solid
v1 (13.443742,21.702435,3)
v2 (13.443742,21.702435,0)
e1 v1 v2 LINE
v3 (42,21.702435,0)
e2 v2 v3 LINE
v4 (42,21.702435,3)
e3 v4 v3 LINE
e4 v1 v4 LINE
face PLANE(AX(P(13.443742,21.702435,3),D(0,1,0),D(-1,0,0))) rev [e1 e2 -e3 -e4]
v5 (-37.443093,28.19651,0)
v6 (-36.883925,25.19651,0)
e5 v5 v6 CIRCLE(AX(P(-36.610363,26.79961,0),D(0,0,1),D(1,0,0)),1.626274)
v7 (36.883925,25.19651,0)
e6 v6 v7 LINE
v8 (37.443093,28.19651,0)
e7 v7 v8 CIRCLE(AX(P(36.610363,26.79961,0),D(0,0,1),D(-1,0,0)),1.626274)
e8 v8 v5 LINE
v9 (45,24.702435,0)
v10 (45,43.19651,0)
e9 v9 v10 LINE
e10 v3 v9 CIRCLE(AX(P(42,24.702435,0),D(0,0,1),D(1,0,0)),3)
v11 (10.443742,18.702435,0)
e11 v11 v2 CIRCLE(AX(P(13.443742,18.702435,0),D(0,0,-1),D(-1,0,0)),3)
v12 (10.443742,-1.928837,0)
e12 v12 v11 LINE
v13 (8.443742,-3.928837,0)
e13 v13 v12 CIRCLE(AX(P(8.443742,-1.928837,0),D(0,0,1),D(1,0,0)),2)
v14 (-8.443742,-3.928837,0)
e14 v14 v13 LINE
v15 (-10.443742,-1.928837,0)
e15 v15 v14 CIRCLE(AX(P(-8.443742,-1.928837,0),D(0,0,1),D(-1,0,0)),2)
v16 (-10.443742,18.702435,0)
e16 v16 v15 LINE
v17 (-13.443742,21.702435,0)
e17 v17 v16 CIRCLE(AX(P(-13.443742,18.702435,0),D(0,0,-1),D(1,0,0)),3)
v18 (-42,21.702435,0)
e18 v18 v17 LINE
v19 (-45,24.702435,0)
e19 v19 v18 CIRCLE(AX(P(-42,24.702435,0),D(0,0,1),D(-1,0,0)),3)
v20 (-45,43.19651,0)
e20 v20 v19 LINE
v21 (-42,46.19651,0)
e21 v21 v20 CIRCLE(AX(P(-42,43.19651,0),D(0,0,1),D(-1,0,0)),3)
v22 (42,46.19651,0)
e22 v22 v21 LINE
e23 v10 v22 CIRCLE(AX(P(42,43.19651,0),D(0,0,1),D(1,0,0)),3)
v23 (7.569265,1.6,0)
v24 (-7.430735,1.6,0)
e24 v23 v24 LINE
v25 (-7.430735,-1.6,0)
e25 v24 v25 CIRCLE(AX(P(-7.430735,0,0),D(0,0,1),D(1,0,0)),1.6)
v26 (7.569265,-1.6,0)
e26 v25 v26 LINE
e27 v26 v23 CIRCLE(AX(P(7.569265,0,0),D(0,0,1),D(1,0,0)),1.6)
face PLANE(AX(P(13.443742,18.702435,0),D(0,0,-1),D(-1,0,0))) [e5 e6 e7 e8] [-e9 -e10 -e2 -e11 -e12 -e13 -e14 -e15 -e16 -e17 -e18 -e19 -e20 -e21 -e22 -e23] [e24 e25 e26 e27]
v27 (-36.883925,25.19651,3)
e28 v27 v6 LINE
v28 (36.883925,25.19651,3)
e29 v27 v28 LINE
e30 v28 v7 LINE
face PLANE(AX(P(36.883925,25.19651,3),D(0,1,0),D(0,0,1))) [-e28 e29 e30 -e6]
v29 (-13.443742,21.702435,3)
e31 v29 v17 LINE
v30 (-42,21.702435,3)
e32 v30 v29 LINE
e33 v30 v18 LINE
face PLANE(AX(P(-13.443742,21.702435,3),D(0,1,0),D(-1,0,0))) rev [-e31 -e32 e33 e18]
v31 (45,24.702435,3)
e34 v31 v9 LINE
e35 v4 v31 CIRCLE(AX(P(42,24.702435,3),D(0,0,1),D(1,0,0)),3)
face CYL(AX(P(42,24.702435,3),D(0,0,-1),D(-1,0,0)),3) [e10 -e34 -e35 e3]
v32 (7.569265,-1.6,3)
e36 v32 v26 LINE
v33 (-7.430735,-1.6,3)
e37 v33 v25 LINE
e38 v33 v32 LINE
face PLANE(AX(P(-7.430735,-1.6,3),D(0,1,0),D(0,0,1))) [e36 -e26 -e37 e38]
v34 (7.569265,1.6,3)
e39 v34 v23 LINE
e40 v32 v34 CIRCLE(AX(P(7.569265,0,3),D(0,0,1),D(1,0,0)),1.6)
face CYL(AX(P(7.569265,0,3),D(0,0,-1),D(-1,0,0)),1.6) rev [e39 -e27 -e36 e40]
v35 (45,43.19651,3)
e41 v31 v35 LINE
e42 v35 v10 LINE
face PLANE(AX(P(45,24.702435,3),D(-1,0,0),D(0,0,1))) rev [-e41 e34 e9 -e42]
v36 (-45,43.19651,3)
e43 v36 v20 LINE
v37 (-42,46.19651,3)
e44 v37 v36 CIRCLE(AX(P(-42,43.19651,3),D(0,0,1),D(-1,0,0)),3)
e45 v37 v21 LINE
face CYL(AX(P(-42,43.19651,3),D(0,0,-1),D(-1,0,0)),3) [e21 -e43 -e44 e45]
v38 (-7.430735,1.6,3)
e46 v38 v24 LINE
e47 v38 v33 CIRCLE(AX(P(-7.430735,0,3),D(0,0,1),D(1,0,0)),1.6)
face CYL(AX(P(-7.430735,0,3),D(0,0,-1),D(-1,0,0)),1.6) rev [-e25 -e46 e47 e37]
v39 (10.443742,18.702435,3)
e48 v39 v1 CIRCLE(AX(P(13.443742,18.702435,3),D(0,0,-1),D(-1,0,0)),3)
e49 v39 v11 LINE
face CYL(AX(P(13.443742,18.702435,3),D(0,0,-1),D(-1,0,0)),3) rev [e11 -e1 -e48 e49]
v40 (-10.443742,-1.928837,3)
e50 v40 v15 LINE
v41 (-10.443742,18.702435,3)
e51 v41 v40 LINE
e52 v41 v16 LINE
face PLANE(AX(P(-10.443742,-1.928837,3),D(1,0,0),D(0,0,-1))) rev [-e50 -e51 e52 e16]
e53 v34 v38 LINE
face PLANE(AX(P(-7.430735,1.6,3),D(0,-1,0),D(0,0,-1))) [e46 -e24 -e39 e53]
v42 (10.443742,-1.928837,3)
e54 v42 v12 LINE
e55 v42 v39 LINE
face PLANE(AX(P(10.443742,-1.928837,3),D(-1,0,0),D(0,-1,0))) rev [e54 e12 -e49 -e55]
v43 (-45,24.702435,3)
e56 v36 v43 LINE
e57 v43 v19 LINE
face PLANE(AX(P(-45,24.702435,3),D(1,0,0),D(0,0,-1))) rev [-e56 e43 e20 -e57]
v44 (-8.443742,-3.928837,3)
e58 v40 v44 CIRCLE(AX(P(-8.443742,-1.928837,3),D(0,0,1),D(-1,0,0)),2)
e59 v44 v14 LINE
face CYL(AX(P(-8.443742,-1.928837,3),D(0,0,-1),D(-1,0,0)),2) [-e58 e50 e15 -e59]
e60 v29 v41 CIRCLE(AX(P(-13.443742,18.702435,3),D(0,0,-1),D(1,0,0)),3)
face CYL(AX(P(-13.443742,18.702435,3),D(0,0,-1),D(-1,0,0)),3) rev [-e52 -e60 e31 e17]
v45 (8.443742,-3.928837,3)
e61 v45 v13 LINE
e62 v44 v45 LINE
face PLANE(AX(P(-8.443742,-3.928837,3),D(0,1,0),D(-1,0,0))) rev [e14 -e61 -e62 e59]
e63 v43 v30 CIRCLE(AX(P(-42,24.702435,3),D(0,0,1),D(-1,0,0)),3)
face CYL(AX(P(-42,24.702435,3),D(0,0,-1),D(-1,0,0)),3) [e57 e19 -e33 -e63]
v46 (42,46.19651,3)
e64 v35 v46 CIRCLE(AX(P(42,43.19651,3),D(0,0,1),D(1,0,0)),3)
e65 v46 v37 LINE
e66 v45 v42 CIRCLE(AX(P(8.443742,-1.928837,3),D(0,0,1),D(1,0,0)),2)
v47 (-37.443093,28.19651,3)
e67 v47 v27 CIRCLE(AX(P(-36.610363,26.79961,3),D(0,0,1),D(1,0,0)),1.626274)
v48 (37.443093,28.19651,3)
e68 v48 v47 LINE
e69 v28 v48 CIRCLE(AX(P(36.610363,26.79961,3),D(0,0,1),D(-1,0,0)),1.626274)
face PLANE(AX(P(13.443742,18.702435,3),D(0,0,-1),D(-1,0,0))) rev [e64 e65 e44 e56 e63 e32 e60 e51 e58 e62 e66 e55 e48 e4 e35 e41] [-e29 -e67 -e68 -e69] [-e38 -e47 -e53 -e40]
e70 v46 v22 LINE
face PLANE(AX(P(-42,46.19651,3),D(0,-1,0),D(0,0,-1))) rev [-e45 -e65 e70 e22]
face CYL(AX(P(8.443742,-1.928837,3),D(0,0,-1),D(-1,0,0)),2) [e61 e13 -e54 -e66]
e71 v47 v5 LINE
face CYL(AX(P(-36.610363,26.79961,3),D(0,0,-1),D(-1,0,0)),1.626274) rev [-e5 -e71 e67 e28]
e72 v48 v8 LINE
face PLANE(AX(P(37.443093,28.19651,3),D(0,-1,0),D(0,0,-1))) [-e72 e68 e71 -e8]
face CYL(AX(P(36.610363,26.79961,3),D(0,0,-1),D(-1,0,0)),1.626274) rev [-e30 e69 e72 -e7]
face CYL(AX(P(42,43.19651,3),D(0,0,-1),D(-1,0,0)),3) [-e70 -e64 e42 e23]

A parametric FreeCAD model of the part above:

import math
import FreeCAD as App
import Part
import Sketcher
from FreeCAD import Vector
Q = App.Units.Quantity

doc = App.newDocument("Part")
body = doc.addObject("PartDesign::Body", "Body")

sketch1 = body.newObject("Sketcher::SketchObject", "Sketch")
sketch1.AttachmentSupport = (doc.getObject("XY_Plane"), [""])
sketch1.MapMode = "FlatFace"
sketch1.addGeometry([
    Part.LineSegment(Vector(-8.4, -3.9, 0), Vector(8.4, -3.9, 0)),
    Part.ArcOfCircle(Part.Circle(Vector(8.4, -1.9, 0), Vector(0, 0, 1), 2), math.radians(-90), math.radians(0)),
    Part.LineSegment(Vector(10.4, -1.9, 0), Vector(10.4, 18.7, 0)),
    Part.ArcOfCircle(Part.Circle(Vector(13.4, 18.7, 0), Vector(0, 0, 1), 3), math.radians(90), math.radians(180)),
    Part.LineSegment(Vector(13.4, 21.7, 0), Vector(42, 21.7, 0)),
    Part.ArcOfCircle(Part.Circle(Vector(42, 24.7, 0), Vector(0, 0, 1), 3), math.radians(-90), math.radians(0)),
    Part.LineSegment(Vector(45, 24.7, 0), Vector(45, 43.2, 0)),
    Part.ArcOfCircle(Part.Circle(Vector(42, 43.2, 0), Vector(0, 0, 1), 3), math.radians(0), math.radians(90)),
    Part.LineSegment(Vector(42, 46.2, 0), Vector(-42, 46.2, 0)),
    Part.ArcOfCircle(Part.Circle(Vector(-42, 43.2, 0), Vector(0, 0, 1), 3), math.radians(90), math.radians(180)),
    Part.LineSegment(Vector(-45, 43.2, 0), Vector(-45, 24.7, 0)),
    Part.ArcOfCircle(Part.Circle(Vector(-42, 24.7, 0), Vector(0, 0, 1), 3), math.radians(180), math.radians(270)),
    Part.LineSegment(Vector(-42, 21.7, 0), Vector(-13.4, 21.7, 0)),
    Part.ArcOfCircle(Part.Circle(Vector(-13.4, 18.7, 0), Vector(0, 0, 1), 3), math.radians(0), math.radians(90)),
    Part.LineSegment(Vector(-10.4, 18.7, 0), Vector(-10.4, -1.9, 0)),
    Part.ArcOfCircle(Part.Circle(Vector(-8.4, -1.9, 0), Vector(0, 0, 1), 2), math.radians(180), math.radians(270)),
    Part.ArcOfCircle(Part.Circle(Vector(-7.4, 0, 0), Vector(0, 0, 1), 1.6), math.radians(90), math.radians(270)),
    Part.LineSegment(Vector(-7.4, 1.6, 0), Vector(7.6, 1.6, 0)),
    Part.ArcOfCircle(Part.Circle(Vector(7.6, 0, 0), Vector(0, 0, 1), 1.6), math.radians(-90), math.radians(90)),
    Part.LineSegment(Vector(7.6, -1.6, 0), Vector(-7.4, -1.6, 0)),
    Part.ArcOfCircle(Part.Circle(Vector(36.6, 26.8, 0), Vector(0, 0, 1), 1.6), math.radians(-80), math.radians(59)),
    Part.LineSegment(Vector(36.9, 25.2, 0), Vector(-36.9, 25.2, 0)),
    Part.ArcOfCircle(Part.Circle(Vector(-36.6, 26.8, 0), Vector(0, 0, 1), 1.6), math.radians(121), math.radians(260)),
    Part.LineSegment(Vector(-37.4, 28.2, 0), Vector(37.4, 28.2, 0)),
], False)
sketch1.addConstraint([
    Sketcher.Constraint("Tangent", 0, 2, 1, 1),
    Sketcher.Constraint("Tangent", 1, 2, 2, 1),
    Sketcher.Constraint("Tangent", 2, 2, 3, 2),
    Sketcher.Constraint("Tangent", 3, 1, 4, 1),
    Sketcher.Constraint("Tangent", 4, 2, 5, 1),
    Sketcher.Constraint("Tangent", 5, 2, 6, 1),
    Sketcher.Constraint("Tangent", 6, 2, 7, 1),
    Sketcher.Constraint("Tangent", 7, 2, 8, 1),
    Sketcher.Constraint("Tangent", 8, 2, 9, 1),
    Sketcher.Constraint("Tangent", 9, 2, 10, 1),
    Sketcher.Constraint("Tangent", 10, 2, 11, 1),
    Sketcher.Constraint("Tangent", 11, 2, 12, 1),
    Sketcher.Constraint("Tangent", 12, 2, 13, 2),
    Sketcher.Constraint("Tangent", 13, 1, 14, 1),
    Sketcher.Constraint("Tangent", 14, 2, 15, 1),
    Sketcher.Constraint("Tangent", 15, 2, 0, 1),
    Sketcher.Constraint("Tangent", 16, 1, 17, 1),
    Sketcher.Constraint("Tangent", 17, 2, 18, 2),
    Sketcher.Constraint("Tangent", 18, 1, 19, 1),
    Sketcher.Constraint("Tangent", 19, 2, 16, 2),
    Sketcher.Constraint("Coincident", 20, 1, 21, 1),
    Sketcher.Constraint("Coincident", 21, 2, 22, 2),
    Sketcher.Constraint("Coincident", 22, 1, 23, 1),
    Sketcher.Constraint("Coincident", 23, 2, 20, 2),
    Sketcher.Constraint("Horizontal", 0),
    Sketcher.Constraint("Vertical", 2),
    Sketcher.Constraint("Horizontal", 4),
    Sketcher.Constraint("Vertical", 6),
    Sketcher.Constraint("Horizontal", 8),
    Sketcher.Constraint("Vertical", 10),
    Sketcher.Constraint("Horizontal", 12),
    Sketcher.Constraint("Vertical", 14),
    Sketcher.Constraint("Horizontal", 17),
    Sketcher.Constraint("Horizontal", 19),
    Sketcher.Constraint("Horizontal", 21),
    Sketcher.Constraint("Horizontal", 23),
    Sketcher.Constraint("Equal", 3, 5),
    Sketcher.Constraint("Equal", 5, 7),
    Sketcher.Constraint("Equal", 7, 9),
    Sketcher.Constraint("Equal", 9, 11),
    Sketcher.Constraint("Equal", 11, 13),
    Sketcher.Constraint("Equal", 1, 15),
    Sketcher.Constraint("Equal", 20, 22),
    Sketcher.Constraint("Symmetric", 5, 3, 11, 3, -2),
    Sketcher.Constraint("Symmetric", 20, 3, 22, 3, -2),
    Sketcher.Constraint("PointOnObject", 16, 3, -1),
    Sketcher.Constraint("Equal", 4, 12),
    Sketcher.Constraint("Radius", 1, Q("2 mm")),
    Sketcher.Constraint("Radius", 3, Q("3 mm")),
    Sketcher.Constraint("Radius", 16, Q("1.6 mm")),
    Sketcher.Constraint("DistanceX", 8, 2, 8, 1, Q("84 mm")),
    Sketcher.Constraint("DistanceX", 17, 1, 17, 2, Q("15 mm")),
    Sketcher.Constraint("DistanceY", 20, 1, 7, 3, Q("18 mm")),
    Sketcher.Constraint("DistanceY", 21, 2, 22, 1, Q("3 mm")),
    Sketcher.Constraint("Radius", 20, Q("1.626274 mm")),
    Sketcher.Constraint("DistanceX", 4, 1, 4, 2, Q("28.556258 mm")),
    Sketcher.Constraint("DistanceX", 21, 2, 21, 1, Q("73.767849 mm")),
    Sketcher.Constraint("DistanceY", 20, 3, 7, 3, Q("16.396899 mm")),
    Sketcher.Constraint("DistanceX", 18, 3, 20, 3, Q("29.041098 mm")),
    Sketcher.Constraint("DistanceY", 2, 1, 2, 2, Q("20.631272 mm")),
    Sketcher.Constraint("DistanceY", 6, 1, 6, 2, Q("18.494075 mm")),
    Sketcher.Constraint("DistanceY", -1, 1, 7, 3, Q("43.19651 mm")),
])
pad1 = body.newObject("PartDesign::Pad", "Pad")
pad1.Profile = sketch1
pad1.Length = 3

doc.recompute()
